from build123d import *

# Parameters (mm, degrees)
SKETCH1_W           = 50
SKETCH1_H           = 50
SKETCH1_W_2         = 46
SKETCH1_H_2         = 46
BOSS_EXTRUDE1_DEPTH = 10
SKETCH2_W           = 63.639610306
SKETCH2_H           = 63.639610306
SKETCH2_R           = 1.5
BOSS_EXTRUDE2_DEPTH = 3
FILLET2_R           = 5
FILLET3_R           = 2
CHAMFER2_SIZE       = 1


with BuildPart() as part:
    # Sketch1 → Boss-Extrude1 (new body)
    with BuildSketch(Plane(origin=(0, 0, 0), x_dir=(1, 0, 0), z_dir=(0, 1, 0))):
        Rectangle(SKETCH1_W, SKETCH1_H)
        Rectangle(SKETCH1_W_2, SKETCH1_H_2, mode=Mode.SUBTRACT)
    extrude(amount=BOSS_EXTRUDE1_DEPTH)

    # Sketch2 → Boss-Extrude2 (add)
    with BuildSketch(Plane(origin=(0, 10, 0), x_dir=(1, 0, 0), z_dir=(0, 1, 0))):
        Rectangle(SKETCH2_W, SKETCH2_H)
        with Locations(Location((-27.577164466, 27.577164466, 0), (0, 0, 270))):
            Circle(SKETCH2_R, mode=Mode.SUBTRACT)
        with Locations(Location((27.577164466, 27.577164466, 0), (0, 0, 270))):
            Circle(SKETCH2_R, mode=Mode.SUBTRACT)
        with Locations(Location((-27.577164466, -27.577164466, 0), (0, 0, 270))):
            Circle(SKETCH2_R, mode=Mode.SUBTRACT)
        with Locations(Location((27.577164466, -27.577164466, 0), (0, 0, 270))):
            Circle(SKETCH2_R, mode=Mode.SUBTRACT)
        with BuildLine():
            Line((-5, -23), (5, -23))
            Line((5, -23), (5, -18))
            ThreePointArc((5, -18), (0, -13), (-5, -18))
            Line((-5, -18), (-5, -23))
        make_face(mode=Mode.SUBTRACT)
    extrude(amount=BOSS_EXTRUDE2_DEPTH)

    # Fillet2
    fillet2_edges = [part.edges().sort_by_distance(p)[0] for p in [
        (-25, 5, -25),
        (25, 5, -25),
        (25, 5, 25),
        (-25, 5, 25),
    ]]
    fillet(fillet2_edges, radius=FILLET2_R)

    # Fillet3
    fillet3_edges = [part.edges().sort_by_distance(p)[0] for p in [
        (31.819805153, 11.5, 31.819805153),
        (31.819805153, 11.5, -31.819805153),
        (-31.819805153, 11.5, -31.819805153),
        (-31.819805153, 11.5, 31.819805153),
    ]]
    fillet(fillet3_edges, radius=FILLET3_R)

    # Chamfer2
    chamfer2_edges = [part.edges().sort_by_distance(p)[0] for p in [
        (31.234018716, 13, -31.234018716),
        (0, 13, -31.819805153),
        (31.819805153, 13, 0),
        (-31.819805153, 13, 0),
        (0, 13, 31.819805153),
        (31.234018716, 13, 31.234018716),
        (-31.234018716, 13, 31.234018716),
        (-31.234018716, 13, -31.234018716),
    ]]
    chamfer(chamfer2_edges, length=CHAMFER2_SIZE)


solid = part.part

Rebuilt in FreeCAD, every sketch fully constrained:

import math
import FreeCAD as App
import Part
import Sketcher


def edges_at(feature, points):
    """Names of the edges that pass closest to the given points."""
    edges = feature.Shape.Edges
    near = lambda p: min(range(len(edges)), key=lambda i: edges[i].distToShape(Part.Vertex(*p))[0])
    return sorted({f"Edge{near(p) + 1}" for p in points})

doc = App.newDocument("Part")
params = doc.addObject("Spreadsheet::Sheet", "Params")
for row, (alias, value) in enumerate([
    ("sketch1_width", "50 mm"),
    ("sketch1_width2", "46 mm"),
    ("pad1_length", "10 mm"),
    ("sketch2_diameter", "3 mm"),
    ("sketch2_radius", "5 mm"),
    ("sketch2_height", "5 mm"),
    ("pad2_length", "3 mm"),
    ("fillet_radius", "5 mm"),
    ("fillet2_radius", "2 mm"),
    ("chamfer_size", "1 mm"),
], start=1):
    params.set(f"A{row}", alias)
    params.set(f"B{row}", "=" + value)
    params.setAlias(f"B{row}", alias)

body = doc.addObject("PartDesign::Body", "Body")

sketch1 = doc.addObject("Sketcher::SketchObject", "Sketch")
body.addObject(sketch1)
sketch1.AttachmentSupport = (doc.XZ_Plane, [""])
sketch1.MapMode = "FlatFace"
sketch1.addGeometry(Part.LineSegment(App.Vector(-25, -25, 0), App.Vector(-25, 25, 0)), False)
sketch1.addGeometry(Part.LineSegment(App.Vector(-25, 25, 0), App.Vector(25, 25, 0)), False)
sketch1.addGeometry(Part.LineSegment(App.Vector(25, 25, 0), App.Vector(25, -25, 0)), False)
sketch1.addGeometry(Part.LineSegment(App.Vector(25, -25, 0), App.Vector(-25, -25, 0)), False)
sketch1.addGeometry(Part.LineSegment(App.Vector(23, 23, 0), App.Vector(-23, 23, 0)), False)
sketch1.addGeometry(Part.LineSegment(App.Vector(-23, 23, 0), App.Vector(-23, -23, 0)), False)
sketch1.addGeometry(Part.LineSegment(App.Vector(-23, -23, 0), App.Vector(23, -23, 0)), False)
sketch1.addGeometry(Part.LineSegment(App.Vector(23, -23, 0), App.Vector(23, 23, 0)), False)
sketch1.addConstraint(Sketcher.Constraint("Coincident", 0, 2, 1, 1))
sketch1.addConstraint(Sketcher.Constraint("Coincident", 1, 2, 2, 1))
sketch1.addConstraint(Sketcher.Constraint("Coincident", 2, 2, 3, 1))
sketch1.addConstraint(Sketcher.Constraint("Coincident", 3, 2, 0, 1))
sketch1.addConstraint(Sketcher.Constraint("Coincident", 4, 2, 5, 1))
sketch1.addConstraint(Sketcher.Constraint("Coincident", 5, 2, 6, 1))
sketch1.addConstraint(Sketcher.Constraint("Coincident", 6, 2, 7, 1))
sketch1.addConstraint(Sketcher.Constraint("Coincident", 7, 2, 4, 1))
sketch1.addConstraint(Sketcher.Constraint("Vertical", 0))
sketch1.addConstraint(Sketcher.Constraint("Horizontal", 1))
sketch1.addConstraint(Sketcher.Constraint("Vertical", 2))
sketch1.addConstraint(Sketcher.Constraint("Horizontal", 3))
sketch1.addConstraint(Sketcher.Constraint("Horizontal", 4))
sketch1.addConstraint(Sketcher.Constraint("Vertical", 5))
sketch1.addConstraint(Sketcher.Constraint("Horizontal", 6))
sketch1.addConstraint(Sketcher.Constraint("Vertical", 7))
sketch1.addConstraint(Sketcher.Constraint("Symmetric", 0, 2, 2, 2, -1, 1))
sketch1.addConstraint(Sketcher.Constraint("Symmetric", 4, 2, 6, 2, -1, 1))
sketch1.addConstraint(Sketcher.Constraint("Equal", 3, 0))
sketch1.addConstraint(Sketcher.Constraint("Equal", 6, 5))
sketch1.addConstraint(Sketcher.Constraint("DistanceX", 1, 1, 1, 2, 50.0))
sketch1.addConstraint(Sketcher.Constraint("DistanceX", 4, 2, 4, 1, 46.0))
sketch1.setExpression("Constraints[20]", "Params.sketch1_width")
sketch1.setExpression("Constraints[21]", "Params.sketch1_width2")
pad1 = doc.addObject("PartDesign::Pad", "Pad")
body.addObject(pad1)
pad1.Profile = sketch1
pad1.setExpression("Length", "Params.pad1_length")
pad1.Reversed = True

sketch2 = doc.addObject("Sketcher::SketchObject", "Sketch001")
body.addObject(sketch2)
sketch2.AttachmentSupport = (doc.XZ_Plane, [""])
sketch2.MapMode = "FlatFace"
sketch2.AttachmentOffset = App.Placement(App.Vector(0, 0, -10), App.Rotation())
sketch2.addGeometry(Part.LineSegment(App.Vector(-31.819805, -31.819805, 0), App.Vector(-31.819805, 31.819805, 0)), False)
sketch2.addGeometry(Part.LineSegment(App.Vector(-31.819805, 31.819805, 0), App.Vector(31.819805, 31.819805, 0)), False)
sketch2.addGeometry(Part.LineSegment(App.Vector(31.819805, 31.819805, 0), App.Vector(31.819805, -31.819805, 0)), False)
sketch2.addGeometry(Part.LineSegment(App.Vector(31.819805, -31.819805, 0), App.Vector(-31.819805, -31.819805, 0)), False)
sketch2.addGeometry(Part.Circle(App.Vector(-27.577164, 27.577164, 0), App.Vector(0, 0, 1), 1.5), False)
sketch2.addGeometry(Part.LineSegment(App.Vector(5, 23, 0), App.Vector(-5, 23, 0)), False)
sketch2.addGeometry(Part.LineSegment(App.Vector(-5, 23, 0), App.Vector(-5, 18, 0)), False)
sketch2.addGeometry(Part.ArcOfCircle(Part.Circle(App.Vector(0, 18, 0), App.Vector(0, 0, 1), 5), math.radians(180), math.radians(360)), False)
sketch2.addGeometry(Part.LineSegment(App.Vector(5, 18, 0), App.Vector(5, 23, 0)), False)
sketch2.addGeometry(Part.Circle(App.Vector(27.577164, 27.577164, 0), App.Vector(0, 0, 1), 1.5), False)
sketch2.addGeometry(Part.Circle(App.Vector(-27.577164, -27.577164, 0), App.Vector(0, 0, 1), 1.5), False)
sketch2.addGeometry(Part.Circle(App.Vector(27.577164, -27.577164, 0), App.Vector(0, 0, 1), 1.5), False)
sketch2.addConstraint(Sketcher.Constraint("Coincident", 0, 2, 1, 1))
sketch2.addConstraint(Sketcher.Constraint("Coincident", 1, 2, 2, 1))
sketch2.addConstraint(Sketcher.Constraint("Coincident", 2, 2, 3, 1))
sketch2.addConstraint(Sketcher.Constraint("Coincident", 3, 2, 0, 1))
sketch2.addConstraint(Sketcher.Constraint("Coincident", 5, 2, 6, 1))
sketch2.addConstraint(Sketcher.Constraint("Tangent", 6, 2, 7, 1))
sketch2.addConstraint(Sketcher.Constraint("Tangent", 7, 2, 8, 1))
sketch2.addConstraint(Sketcher.Constraint("Coincident", 8, 2, 5, 1))
sketch2.addConstraint(Sketcher.Constraint("Vertical", 0))
sketch2.addConstraint(Sketcher.Constraint("Horizontal", 1))
sketch2.addConstraint(Sketcher.Constraint("Vertical", 2))
sketch2.addConstraint(Sketcher.Constraint("Horizontal", 3))
sketch2.addConstraint(Sketcher.Constraint("Horizontal", 5))
sketch2.addConstraint(Sketcher.Constraint("Vertical", 6))
sketch2.addConstraint(Sketcher.Constraint("Vertical", 8))
sketch2.addConstraint(Sketcher.Constraint("Equal", 4, 9))
sketch2.addConstraint(Sketcher.Constraint("Equal", 9, 10))
sketch2.addConstraint(Sketcher.Constraint("Equal", 10, 11))
sketch2.addConstraint(Sketcher.Constraint("Symmetric", 9, 3, 10, 3, -1, 1))
sketch2.addConstraint(Sketcher.Constraint("Symmetric", 4, 3, 11, 3, -1, 1))
sketch2.addConstraint(Sketcher.Constraint("Symmetric", 0, 2, 2, 2, -1, 1))
sketch2.addConstraint(Sketcher.Constraint("Symmetric", 4, 3, 9, 3, -2))
sketch2.addConstraint(Sketcher.Constraint("PointOnObject", 7, 3, -2))
sketch2.addConstraint(Sketcher.Constraint("Equal", 3, 0))
sketch2.addConstraint(Sketcher.Constraint("Diameter", 4, 3.0))
sketch2.addConstraint(Sketcher.Constraint("Radius", 7, 5.0))
sketch2.addConstraint(Sketcher.Constraint("DistanceY", 6, 2, 6, 1, 5.0))
sketch2.addConstraint(Sketcher.Constraint("DistanceY", -1, 1, 7, 3, 18.0))
sketch2.addConstraint(Sketcher.Constraint("DistanceX", 1, 1, 1, 2, 63.63961))
sketch2.addConstraint(Sketcher.Constraint("DistanceX", 4, 3, 9, 3, 55.154329))
sketch2.addConstraint(Sketcher.Constraint("DistanceY", 10, 3, 4, 3, 55.154329))
sketch2.setExpression("Constraints[24]", "Params.sketch2_diameter")
sketch2.setExpression("Constraints[25]", "Params.sketch2_radius")
sketch2.setExpression("Constraints[26]", "Params.sketch2_height")
pad2 = doc.addObject("PartDesign::Pad", "Pad001")
body.addObject(pad2)
pad2.Profile = sketch2
pad2.setExpression("Length", "Params.pad2_length")
pad2.Reversed = True
doc.recompute()

fillet = doc.addObject("PartDesign::Fillet", "Fillet")
body.addObject(fillet)
fillet.Base = (pad2, edges_at(pad2, [
    (-25, 5, -25),
    (25, 5, -25),
    (25, 5, 25),
    (-25, 5, 25),
]))
fillet.setExpression("Radius", "Params.fillet_radius")
doc.recompute()

fillet2 = doc.addObject("PartDesign::Fillet", "Fillet001")
body.addObject(fillet2)
fillet2.Base = (fillet, edges_at(fillet, [
    (31.82, 11.5, 31.82),
    (31.82, 11.5, -31.82),
    (-31.82, 11.5, -31.82),
    (-31.82, 11.5, 31.82),
]))
fillet2.setExpression("Radius", "Params.fillet2_radius")
doc.recompute()

chamfer = doc.addObject("PartDesign::Chamfer", "Chamfer")
body.addObject(chamfer)
chamfer.Base = (fillet2, edges_at(fillet2, [
    (31.234, 13, -31.234),
    (0, 13, -31.82),
    (31.82, 13, 0),
    (-31.82, 13, 0),
    (0, 13, 31.82),
    (31.234, 13, 31.234),
    (-31.234, 13, 31.234),
    (-31.234, 13, -31.234),
]))
chamfer.setExpression("Size", "Params.chamfer_size")

doc.recompute()
